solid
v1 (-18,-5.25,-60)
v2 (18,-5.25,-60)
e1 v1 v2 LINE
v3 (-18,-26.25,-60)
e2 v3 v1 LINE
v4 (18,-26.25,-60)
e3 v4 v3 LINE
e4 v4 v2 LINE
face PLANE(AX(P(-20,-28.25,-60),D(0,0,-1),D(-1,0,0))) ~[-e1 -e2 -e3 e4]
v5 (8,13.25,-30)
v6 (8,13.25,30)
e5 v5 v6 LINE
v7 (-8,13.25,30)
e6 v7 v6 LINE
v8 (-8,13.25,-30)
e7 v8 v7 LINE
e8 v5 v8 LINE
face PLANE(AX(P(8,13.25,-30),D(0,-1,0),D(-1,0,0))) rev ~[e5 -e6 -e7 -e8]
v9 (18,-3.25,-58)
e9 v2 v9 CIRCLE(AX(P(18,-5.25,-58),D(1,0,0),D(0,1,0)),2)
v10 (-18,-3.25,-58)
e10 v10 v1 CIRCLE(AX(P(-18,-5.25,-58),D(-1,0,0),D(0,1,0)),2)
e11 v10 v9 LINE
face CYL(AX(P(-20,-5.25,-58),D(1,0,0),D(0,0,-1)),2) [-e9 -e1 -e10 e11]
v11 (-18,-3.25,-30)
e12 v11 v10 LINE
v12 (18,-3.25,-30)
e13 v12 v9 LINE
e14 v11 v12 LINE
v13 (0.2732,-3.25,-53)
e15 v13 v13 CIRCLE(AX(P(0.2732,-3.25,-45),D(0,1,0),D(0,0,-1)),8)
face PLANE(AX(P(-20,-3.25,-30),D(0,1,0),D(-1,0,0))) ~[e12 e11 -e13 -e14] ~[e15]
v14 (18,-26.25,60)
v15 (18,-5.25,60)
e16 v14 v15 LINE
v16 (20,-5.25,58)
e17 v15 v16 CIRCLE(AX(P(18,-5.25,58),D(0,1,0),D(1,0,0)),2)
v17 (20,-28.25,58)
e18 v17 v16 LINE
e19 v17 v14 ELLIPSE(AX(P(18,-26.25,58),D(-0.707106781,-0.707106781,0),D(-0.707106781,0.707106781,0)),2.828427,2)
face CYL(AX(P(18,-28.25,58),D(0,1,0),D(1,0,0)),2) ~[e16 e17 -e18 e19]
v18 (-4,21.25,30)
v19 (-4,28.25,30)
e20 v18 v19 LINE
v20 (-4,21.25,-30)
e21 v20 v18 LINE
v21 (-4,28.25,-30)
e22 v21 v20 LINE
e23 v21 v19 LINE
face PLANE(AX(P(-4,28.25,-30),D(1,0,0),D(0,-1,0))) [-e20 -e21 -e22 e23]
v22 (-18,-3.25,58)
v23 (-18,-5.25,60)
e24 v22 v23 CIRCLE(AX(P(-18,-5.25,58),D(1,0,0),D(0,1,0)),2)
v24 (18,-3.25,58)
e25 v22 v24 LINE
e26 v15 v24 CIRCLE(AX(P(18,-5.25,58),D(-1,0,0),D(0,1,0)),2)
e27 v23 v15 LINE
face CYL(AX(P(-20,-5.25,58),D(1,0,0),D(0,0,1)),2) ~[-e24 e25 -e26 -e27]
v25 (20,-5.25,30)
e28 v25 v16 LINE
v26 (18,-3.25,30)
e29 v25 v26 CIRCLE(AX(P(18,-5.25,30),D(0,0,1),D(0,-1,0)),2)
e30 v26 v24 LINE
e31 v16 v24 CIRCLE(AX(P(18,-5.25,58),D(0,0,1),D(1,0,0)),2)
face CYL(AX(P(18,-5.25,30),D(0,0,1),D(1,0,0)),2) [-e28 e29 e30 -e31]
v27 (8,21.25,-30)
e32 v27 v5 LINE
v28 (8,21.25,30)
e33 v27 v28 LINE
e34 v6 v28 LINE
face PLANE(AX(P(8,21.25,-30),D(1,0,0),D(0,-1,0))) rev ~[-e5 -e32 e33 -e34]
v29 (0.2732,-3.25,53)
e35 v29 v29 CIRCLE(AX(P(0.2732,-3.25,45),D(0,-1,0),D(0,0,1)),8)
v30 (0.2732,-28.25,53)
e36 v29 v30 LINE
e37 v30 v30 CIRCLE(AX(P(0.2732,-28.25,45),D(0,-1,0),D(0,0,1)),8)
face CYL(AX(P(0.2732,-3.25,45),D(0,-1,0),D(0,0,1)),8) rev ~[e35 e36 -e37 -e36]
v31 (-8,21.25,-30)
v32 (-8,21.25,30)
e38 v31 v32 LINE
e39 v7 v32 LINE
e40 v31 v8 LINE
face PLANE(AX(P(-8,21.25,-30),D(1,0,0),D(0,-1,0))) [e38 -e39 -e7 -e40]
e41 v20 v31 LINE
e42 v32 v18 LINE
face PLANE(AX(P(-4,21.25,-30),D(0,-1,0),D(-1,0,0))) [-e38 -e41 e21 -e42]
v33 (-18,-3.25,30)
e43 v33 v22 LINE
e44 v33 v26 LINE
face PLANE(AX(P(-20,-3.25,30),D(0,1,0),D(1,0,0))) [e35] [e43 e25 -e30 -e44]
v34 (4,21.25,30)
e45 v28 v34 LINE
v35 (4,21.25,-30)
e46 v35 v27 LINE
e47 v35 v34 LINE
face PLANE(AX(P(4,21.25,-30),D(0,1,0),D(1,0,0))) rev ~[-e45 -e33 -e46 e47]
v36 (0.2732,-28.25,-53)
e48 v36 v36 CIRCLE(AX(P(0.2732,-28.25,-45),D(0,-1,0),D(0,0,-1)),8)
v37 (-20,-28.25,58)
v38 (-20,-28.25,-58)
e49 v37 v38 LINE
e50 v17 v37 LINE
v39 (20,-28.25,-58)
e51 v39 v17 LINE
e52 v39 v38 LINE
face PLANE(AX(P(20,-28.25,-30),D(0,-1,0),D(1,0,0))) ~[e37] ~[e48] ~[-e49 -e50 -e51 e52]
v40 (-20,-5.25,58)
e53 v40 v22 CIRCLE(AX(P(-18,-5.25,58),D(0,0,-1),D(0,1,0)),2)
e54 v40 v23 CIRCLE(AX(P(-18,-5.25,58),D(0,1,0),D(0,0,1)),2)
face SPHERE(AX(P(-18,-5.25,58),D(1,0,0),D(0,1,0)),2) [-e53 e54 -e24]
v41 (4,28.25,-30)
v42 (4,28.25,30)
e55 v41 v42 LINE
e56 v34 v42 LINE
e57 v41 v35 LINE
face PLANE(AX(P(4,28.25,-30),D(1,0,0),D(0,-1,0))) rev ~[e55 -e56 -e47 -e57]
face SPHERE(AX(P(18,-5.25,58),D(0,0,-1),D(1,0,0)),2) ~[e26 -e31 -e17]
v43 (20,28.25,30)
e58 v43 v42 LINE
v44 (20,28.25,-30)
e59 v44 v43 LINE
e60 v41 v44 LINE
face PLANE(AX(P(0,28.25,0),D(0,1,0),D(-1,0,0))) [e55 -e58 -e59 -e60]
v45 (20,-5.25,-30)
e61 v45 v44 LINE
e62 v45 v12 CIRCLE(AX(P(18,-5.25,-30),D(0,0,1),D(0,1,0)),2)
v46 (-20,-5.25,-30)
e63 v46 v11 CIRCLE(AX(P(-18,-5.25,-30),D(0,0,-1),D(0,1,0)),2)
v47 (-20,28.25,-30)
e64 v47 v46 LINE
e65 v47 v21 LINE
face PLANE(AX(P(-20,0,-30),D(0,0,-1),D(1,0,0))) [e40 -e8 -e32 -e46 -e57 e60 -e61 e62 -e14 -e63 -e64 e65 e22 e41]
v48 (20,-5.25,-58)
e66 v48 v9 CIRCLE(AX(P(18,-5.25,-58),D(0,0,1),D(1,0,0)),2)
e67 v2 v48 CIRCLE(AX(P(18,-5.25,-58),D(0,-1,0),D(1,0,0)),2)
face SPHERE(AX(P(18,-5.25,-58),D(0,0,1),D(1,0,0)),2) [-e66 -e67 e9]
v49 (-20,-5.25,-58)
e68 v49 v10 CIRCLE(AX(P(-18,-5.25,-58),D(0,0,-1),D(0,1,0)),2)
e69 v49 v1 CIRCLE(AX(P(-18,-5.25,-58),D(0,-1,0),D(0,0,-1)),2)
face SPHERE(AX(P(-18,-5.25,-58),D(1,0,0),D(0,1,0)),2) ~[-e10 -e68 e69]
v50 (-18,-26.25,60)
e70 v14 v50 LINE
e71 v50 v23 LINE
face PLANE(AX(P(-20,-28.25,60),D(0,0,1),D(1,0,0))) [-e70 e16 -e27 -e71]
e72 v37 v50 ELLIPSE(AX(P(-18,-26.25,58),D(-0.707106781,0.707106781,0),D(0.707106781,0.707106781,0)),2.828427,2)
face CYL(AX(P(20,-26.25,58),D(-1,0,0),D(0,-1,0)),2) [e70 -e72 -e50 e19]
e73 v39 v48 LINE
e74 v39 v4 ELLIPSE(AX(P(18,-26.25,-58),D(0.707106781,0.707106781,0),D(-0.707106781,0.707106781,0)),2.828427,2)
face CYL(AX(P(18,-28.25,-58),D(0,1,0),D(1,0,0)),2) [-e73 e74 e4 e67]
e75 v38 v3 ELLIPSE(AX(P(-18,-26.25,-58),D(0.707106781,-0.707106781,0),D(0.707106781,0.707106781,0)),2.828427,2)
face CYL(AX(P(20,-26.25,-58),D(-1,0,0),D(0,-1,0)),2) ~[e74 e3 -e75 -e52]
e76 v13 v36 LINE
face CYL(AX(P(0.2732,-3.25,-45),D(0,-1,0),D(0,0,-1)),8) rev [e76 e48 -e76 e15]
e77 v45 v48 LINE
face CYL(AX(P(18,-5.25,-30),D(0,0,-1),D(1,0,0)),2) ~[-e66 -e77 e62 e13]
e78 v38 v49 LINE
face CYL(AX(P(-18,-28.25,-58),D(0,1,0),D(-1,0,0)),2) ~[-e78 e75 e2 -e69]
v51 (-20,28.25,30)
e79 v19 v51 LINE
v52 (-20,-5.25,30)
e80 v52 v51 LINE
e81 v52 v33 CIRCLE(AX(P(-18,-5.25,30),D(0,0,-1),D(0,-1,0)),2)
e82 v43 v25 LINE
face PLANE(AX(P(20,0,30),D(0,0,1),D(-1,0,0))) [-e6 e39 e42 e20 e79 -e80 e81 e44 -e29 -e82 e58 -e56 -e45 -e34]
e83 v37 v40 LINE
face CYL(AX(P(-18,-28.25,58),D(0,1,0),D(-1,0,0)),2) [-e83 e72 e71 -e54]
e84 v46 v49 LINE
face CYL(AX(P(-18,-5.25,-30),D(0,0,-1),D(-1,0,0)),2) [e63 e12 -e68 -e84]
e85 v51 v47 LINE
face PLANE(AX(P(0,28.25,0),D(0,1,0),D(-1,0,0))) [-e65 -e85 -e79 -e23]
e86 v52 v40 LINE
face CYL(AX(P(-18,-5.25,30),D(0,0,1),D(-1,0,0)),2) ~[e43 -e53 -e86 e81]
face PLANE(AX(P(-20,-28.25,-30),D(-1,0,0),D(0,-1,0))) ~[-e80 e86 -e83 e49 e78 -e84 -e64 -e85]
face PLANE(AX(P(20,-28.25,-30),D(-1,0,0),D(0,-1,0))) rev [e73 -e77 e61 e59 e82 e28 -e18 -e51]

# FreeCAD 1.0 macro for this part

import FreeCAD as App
import Part
import Sketcher


def edges_at(feature, points):
    """Names of the edges that pass closest to the given points."""
    edges = feature.Shape.Edges
    near = lambda p: min(range(len(edges)), key=lambda i: edges[i].distToShape(Part.Vertex(*p))[0])
    return sorted({f"Edge{near(p) + 1}" for p in points})


def add_polygon(sketch, points):
    """Adds a closed chain of lines whose ends are joined by coincident constraints."""
    first, n = sketch.GeometryCount, len(points)
    for a, b in zip(points, points[1:] + points[:1]):
        sketch.addGeometry(Part.LineSegment(App.Vector(*a, 0), App.Vector(*b, 0)), False)
    for i in range(n):
        sketch.addConstraint(Sketcher.Constraint("Coincident", first + i, 2, first + (i + 1) % n, 1))

doc = App.newDocument("Part")
params = doc.addObject("Spreadsheet::Sheet", "Params")
for row, (alias, value) in enumerate([
    ("sketch1_width", "40 mm"),
    ("sketch1_height", "60 mm"),
    ("pad1_length", "56.5 mm"),
    ("sketch2_width", "4 mm"),
    ("sketch2_width2", "8 mm"),
    ("sketch2_height", "7 mm"),
    ("sketch3_height", "25 mm"),
    ("sketch3_width", "40 mm"),
    ("pad2_length", "30 mm"),
    ("fillet_radius", "2 mm"),
    ("sketch4_diameter", "16 mm"),
    ("hole_diameter", "16 mm"),
], start=1):
    params.set(f"A{row}", alias)
    params.set(f"B{row}", "=" + value)
    params.setAlias(f"B{row}", alias)

body = doc.addObject("PartDesign::Body", "Body")

# Sketch on XZ plane
sketch1 = body.newObject("Sketcher::SketchObject", "Sketch")
sketch1.AttachmentSupport = (doc.getObject("XZ_Plane"), [""])
sketch1.MapMode = "FlatFace"
add_polygon(sketch1, [(-20, 30), (20, 30), (20, -30), (-20, -30)])  # lines 0-3
sketch1.addConstraint(Sketcher.Constraint("Horizontal", 0))
sketch1.addConstraint(Sketcher.Constraint("Vertical", 1))
sketch1.addConstraint(Sketcher.Constraint("Horizontal", 2))
sketch1.addConstraint(Sketcher.Constraint("Vertical", 3))
sketch1.addConstraint(Sketcher.Constraint("Symmetric", 0, 2, 2, 2, -1, 1))
sketch1.addConstraint(Sketcher.Constraint("DistanceX", 0, 1, 0, 2, 40.0))
sketch1.addConstraint(Sketcher.Constraint("DistanceY", 1, 2, 1, 1, 60.0))
sketch1.setExpression("Constraints[9]", "Params.sketch1_width")
sketch1.setExpression("Constraints[10]", "Params.sketch1_height")
pad1 = body.newObject("PartDesign::Pad", "Pad")
pad1.Profile = sketch1
pad1.setExpression("Length", "Params.pad1_length")
pad1.Midplane = True

# Sketch on XY plane
sketch2 = body.newObject("Sketcher::SketchObject", "Sketch001")
sketch2.AttachmentSupport = (doc.getObject("XY_Plane"), [""])
sketch2.MapMode = "FlatFace"
sketch2.AttachmentOffset = App.Placement(App.Vector(0, 0, -30), App.Rotation())
add_polygon(sketch2, [(4, 28.2), (4, 21.2), (8, 21.2), (8, 13.2), (-8, 13.2), (-8, 21.2), (-4, 21.2), (-4, 28.2)])  # lines 0-7
sketch2.addConstraint(Sketcher.Constraint("Vertical", 0))
sketch2.addConstraint(Sketcher.Constraint("Horizontal", 1))
sketch2.addConstraint(Sketcher.Constraint("Vertical", 2))
sketch2.addConstraint(Sketcher.Constraint("Horizontal", 3))
sketch2.addConstraint(Sketcher.Constraint("Vertical", 4))
sketch2.addConstraint(Sketcher.Constraint("Horizontal", 5))
sketch2.addConstraint(Sketcher.Constraint("Vertical", 6))
sketch2.addConstraint(Sketcher.Constraint("Horizontal", 7))
sketch2.addConstraint(Sketcher.Constraint("Symmetric", 1, 2, 4, 2, -2))
sketch2.addConstraint(Sketcher.Constraint("Equal", 1, 5))
sketch2.addConstraint(Sketcher.Constraint("Equal", 7, 2))
sketch2.addConstraint(Sketcher.Constraint("DistanceX", 1, 1, 1, 2, 4.0))
sketch2.addConstraint(Sketcher.Constraint("DistanceX", 7, 1, 7, 2, 8.0))
sketch2.addConstraint(Sketcher.Constraint("DistanceY", 0, 2, 0, 1, 7.0))
sketch2.addConstraint(Sketcher.Constraint("DistanceY", -1, 1, 0, 2, 21.25))
sketch2.setExpression("Constraints[19]", "Params.sketch2_width")
sketch2.setExpression("Constraints[20]", "Params.sketch2_width2")
sketch2.setExpression("Constraints[21]", "Params.sketch2_height")
pocket1 = body.newObject("PartDesign::Pocket", "Pocket")
pocket1.Profile = sketch2
pocket1.Type = "ThroughAll"
pocket1.Reversed = True

# Sketch on XY plane
sketch3 = body.newObject("Sketcher::SketchObject", "Sketch002")
sketch3.AttachmentSupport = (doc.getObject("XY_Plane"), [""])
sketch3.MapMode = "FlatFace"
sketch3.AttachmentOffset = App.Placement(App.Vector(0, 0, 30), App.Rotation())
add_polygon(sketch3, [(-20, -28), (20, -28), (20, -3), (-20, -3)])  # lines 0-3
sketch3.addConstraint(Sketcher.Constraint("Horizontal", 0))
sketch3.addConstraint(Sketcher.Constraint("Vertical", 1))
sketch3.addConstraint(Sketcher.Constraint("Horizontal", 2))
sketch3.addConstraint(Sketcher.Constraint("Vertical", 3))
sketch3.addConstraint(Sketcher.Constraint("DistanceY", 1, 1, 1, 2, 25.0))
sketch3.addConstraint(Sketcher.Constraint("DistanceX", 0, 1, 0, 2, 40.0))
sketch3.addConstraint(Sketcher.Constraint("DistanceX", -1, 1, 0, 2, 20.0))
sketch3.addConstraint(Sketcher.Constraint("DistanceY", 0, 2, -1, 1, 28.25))
sketch3.setExpression("Constraints[8]", "Params.sketch3_height")
sketch3.setExpression("Constraints[9]", "Params.sketch3_width")
pad2 = body.newObject("PartDesign::Pad", "Pad001")
pad2.Profile = sketch3
pad2.setExpression("Length", "Params.pad2_length")
doc.recompute()

fillet = body.newObject("PartDesign::Fillet", "Fillet")
fillet.Base = (pad2, edges_at(pad2, [
    (20, -3.25, 45),
    (20, -15.75, 60),
    (0, -3.25, 60),
    (-20, -3.25, 45),
    (-20, -15.75, 60),
    (0, -28.25, 60),
]))
fillet.setExpression("Radius", "Params.fillet_radius")

# Sketch on XZ plane
sketch4 = body.newObject("Sketcher::SketchObject", "Sketch003")
sketch4.AttachmentSupport = (doc.getObject("XZ_Plane"), [""])
sketch4.MapMode = "FlatFace"
sketch4.AttachmentOffset = App.Placement(App.Vector(0, 0, 3.25), App.Rotation())
sketch4.addGeometry(Part.Circle(App.Vector(0, 45, 0), App.Vector(0, 0, 1), 8), False)
sketch4.addConstraint(Sketcher.Constraint("Diameter", 0, 16.0))
sketch4.addConstraint(Sketcher.Constraint("DistanceY", -1, 1, 0, 3, 45.0))
sketch4.addConstraint(Sketcher.Constraint("DistanceX", -1, 1, 0, 3, 0.2732))
sketch4.setExpression("Constraints[0]", "Params.sketch4_diameter")
doc.recompute()
hole = body.newObject("PartDesign::Hole", "Hole")
hole.Profile = sketch4
hole.ThreadType = "None"
hole.setExpression("Diameter", "Params.hole_diameter")
hole.DepthType = "ThroughAll"
hole.Reversed = True
doc.recompute()

mirrored = body.newObject("PartDesign::Mirrored", "Mirrored")
mirrored.Originals = [pad2, fillet, hole]
mirrored.MirrorPlane = (doc.getObject("XY_Plane"), [""])
body.Tip = mirrored

doc.recompute()
